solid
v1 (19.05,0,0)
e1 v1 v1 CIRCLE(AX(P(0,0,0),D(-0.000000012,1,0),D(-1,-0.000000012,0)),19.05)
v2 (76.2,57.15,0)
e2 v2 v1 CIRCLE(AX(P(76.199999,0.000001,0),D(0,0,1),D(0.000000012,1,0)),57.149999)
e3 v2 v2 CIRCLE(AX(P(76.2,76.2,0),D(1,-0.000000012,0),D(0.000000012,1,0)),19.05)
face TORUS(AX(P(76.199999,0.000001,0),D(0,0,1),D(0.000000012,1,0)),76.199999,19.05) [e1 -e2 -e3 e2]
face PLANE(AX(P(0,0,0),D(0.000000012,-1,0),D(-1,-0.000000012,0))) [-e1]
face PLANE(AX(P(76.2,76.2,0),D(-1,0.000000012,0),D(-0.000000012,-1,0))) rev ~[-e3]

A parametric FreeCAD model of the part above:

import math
import FreeCAD as App
import Part
import Sketcher

V = App.Vector
Q = App.Units.Quantity

doc = App.newDocument("Part")
body = doc.addObject("PartDesign::Body", "Body")

sketch1 = doc.addObject("Sketcher::SketchObject", "Sketch")
body.addObject(sketch1)
sketch1.AttachmentSupport = (doc.XZ_Plane, [""])
sketch1.MapMode = "FlatFace"
sketch1.addGeometry(Part.Circle(V(0, 0, 0), V(0, 0, 1), 19), False)
sketch1.addConstraint([
    Sketcher.Constraint("Coincident", 0, 3, -1, 1),
    Sketcher.Constraint("Diameter", 0, Q("1.5 in")),
])

sketch2 = doc.addObject("Sketcher::SketchObject", "Sketch001")
body.addObject(sketch2)
sketch2.AttachmentSupport = (doc.XY_Plane, [""])
sketch2.MapMode = "FlatFace"
sketch2.addGeometry(Part.ArcOfCircle(Part.Circle(V(76, 0, 0), V(0, 0, 1), 76), math.radians(90), math.radians(180)), False)
sketch2.addConstraint([
    Sketcher.Constraint("Coincident", 0, 2, -1, 1),
    Sketcher.Constraint("PointOnObject", 0, 3, -1),
    Sketcher.Constraint("Radius", 0, Q("3 in")),
    Sketcher.Constraint("DistanceX", -1, 1, 0, 1, Q("3 in")),
])
doc.recompute()

additivepipe = doc.addObject("PartDesign::AdditivePipe", "AdditivePipe")
body.addObject(additivepipe)
additivepipe.Profile = sketch1
additivepipe.Spine = (sketch2, ["Edge1"])

doc.recompute()
